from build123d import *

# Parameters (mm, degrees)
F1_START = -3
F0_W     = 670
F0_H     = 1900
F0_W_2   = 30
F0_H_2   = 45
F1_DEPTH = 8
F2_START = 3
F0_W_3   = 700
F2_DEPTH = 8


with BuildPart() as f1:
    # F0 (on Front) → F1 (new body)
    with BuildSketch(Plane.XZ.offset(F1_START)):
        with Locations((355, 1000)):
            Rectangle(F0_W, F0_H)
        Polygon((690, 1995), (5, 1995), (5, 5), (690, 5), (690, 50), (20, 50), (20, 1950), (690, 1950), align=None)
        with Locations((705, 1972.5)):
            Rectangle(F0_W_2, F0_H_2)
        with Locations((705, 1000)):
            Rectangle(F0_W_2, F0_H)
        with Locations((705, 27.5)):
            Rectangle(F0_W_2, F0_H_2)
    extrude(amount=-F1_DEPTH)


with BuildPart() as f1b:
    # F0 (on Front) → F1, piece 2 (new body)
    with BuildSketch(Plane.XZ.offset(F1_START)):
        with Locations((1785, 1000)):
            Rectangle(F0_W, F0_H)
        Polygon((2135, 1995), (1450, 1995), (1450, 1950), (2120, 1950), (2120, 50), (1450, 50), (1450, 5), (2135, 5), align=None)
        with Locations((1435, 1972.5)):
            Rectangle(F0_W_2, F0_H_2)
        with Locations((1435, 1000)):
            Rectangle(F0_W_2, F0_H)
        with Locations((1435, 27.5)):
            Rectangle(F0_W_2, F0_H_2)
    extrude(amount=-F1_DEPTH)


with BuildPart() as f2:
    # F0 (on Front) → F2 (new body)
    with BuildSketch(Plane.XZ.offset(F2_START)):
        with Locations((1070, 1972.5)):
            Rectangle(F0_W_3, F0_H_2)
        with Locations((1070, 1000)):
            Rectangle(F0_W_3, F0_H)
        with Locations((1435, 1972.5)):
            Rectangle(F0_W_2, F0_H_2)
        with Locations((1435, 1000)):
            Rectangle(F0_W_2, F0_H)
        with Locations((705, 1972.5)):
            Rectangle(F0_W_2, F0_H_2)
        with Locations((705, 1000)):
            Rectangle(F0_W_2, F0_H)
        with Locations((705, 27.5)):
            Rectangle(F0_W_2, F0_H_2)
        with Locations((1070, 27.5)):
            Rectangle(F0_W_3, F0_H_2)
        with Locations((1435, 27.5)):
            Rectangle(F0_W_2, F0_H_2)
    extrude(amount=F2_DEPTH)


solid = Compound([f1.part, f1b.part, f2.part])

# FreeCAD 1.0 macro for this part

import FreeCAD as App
import Part
import Sketcher
from FreeCAD import Vector


def add_polygon(sketch, points):
    """Adds a closed chain of lines whose ends are joined by coincident constraints."""
    first, n = sketch.GeometryCount, len(points)
    for a, b in zip(points, points[1:] + points[:1]):
        sketch.addGeometry(Part.LineSegment(App.Vector(*a, 0), App.Vector(*b, 0)), False)
    for i in range(n):
        sketch.addConstraint(Sketcher.Constraint("Coincident", first + i, 2, first + (i + 1) % n, 1))

doc = App.newDocument("Part")
body = doc.addObject("PartDesign::Body", "Body")

# Sketch on XZ plane
sketch1 = body.newObject("Sketcher::SketchObject", "Sketch")
sketch1.AttachmentSupport = (doc.getObject("XZ_Plane"), [""])
sketch1.MapMode = "FlatFace"
sketch1.AttachmentOffset = App.Placement(Vector(0, 0, -3), App.Rotation())
add_polygon(sketch1, [(5, 1995), (5, 5), (720, 5), (720, 1995)])  # lines 0-3
sketch1.addConstraint(Sketcher.Constraint("Vertical", 0))
sketch1.addConstraint(Sketcher.Constraint("Horizontal", 1))
sketch1.addConstraint(Sketcher.Constraint("Vertical", 2))
sketch1.addConstraint(Sketcher.Constraint("Horizontal", 3))
sketch1.addConstraint(Sketcher.Constraint("DistanceX", 1, 1, 1, 2, 715.0))
sketch1.addConstraint(Sketcher.Constraint("DistanceY", 0, 2, 0, 1, 1990.0))
sketch1.addConstraint(Sketcher.Constraint("DistanceX", -1, 1, 0, 2, 5.0))
sketch1.addConstraint(Sketcher.Constraint("DistanceY", -1, 1, 0, 2, 5.0))
pad1 = body.newObject("PartDesign::Pad", "Pad")
pad1.Profile = sketch1
pad1.Length = 8
pad1.Reversed = True
body2 = doc.addObject("PartDesign::Body", "Body001")

# Sketch on XZ plane
sketch2 = body2.newObject("Sketcher::SketchObject", "Sketch001")
sketch2.AttachmentSupport = (doc.getObject("XZ_Plane001"), [""])
sketch2.MapMode = "FlatFace"
sketch2.AttachmentOffset = App.Placement(Vector(0, 0, -3), App.Rotation())
add_polygon(sketch2, [(2135, 5), (2135, 1995), (1420, 1995), (1420, 5)])  # lines 0-3
sketch2.addConstraint(Sketcher.Constraint("Vertical", 0))
sketch2.addConstraint(Sketcher.Constraint("Horizontal", 1))
sketch2.addConstraint(Sketcher.Constraint("Vertical", 2))
sketch2.addConstraint(Sketcher.Constraint("Horizontal", 3))
sketch2.addConstraint(Sketcher.Constraint("DistanceX", 1, 2, 1, 1, 715.0))
sketch2.addConstraint(Sketcher.Constraint("DistanceY", 0, 1, 0, 2, 1990.0))
sketch2.addConstraint(Sketcher.Constraint("DistanceX", -1, 1, 0, 2, 2135.0))
sketch2.addConstraint(Sketcher.Constraint("DistanceY", -1, 1, 0, 2, 1995.0))
pad2 = body2.newObject("PartDesign::Pad", "Pad001")
pad2.Profile = sketch2
pad2.Length = 8
pad2.Reversed = True
body3 = doc.addObject("PartDesign::Body", "Body002")

# Sketch on XZ plane
sketch3 = body3.newObject("Sketcher::SketchObject", "Sketch002")
sketch3.AttachmentSupport = (doc.getObject("XZ_Plane002"), [""])
sketch3.MapMode = "FlatFace"
sketch3.AttachmentOffset = App.Placement(Vector(0, 0, 3), App.Rotation())
add_polygon(sketch3, [(1450, 1995), (690, 1995), (690, 5), (1450, 5)])  # lines 0-3
sketch3.addConstraint(Sketcher.Constraint("Horizontal", 0))
sketch3.addConstraint(Sketcher.Constraint("Vertical", 1))
sketch3.addConstraint(Sketcher.Constraint("Horizontal", 2))
sketch3.addConstraint(Sketcher.Constraint("Vertical", 3))
sketch3.addConstraint(Sketcher.Constraint("DistanceX", 0, 2, 0, 1, 760.0))
sketch3.addConstraint(Sketcher.Constraint("DistanceY", 1, 2, 1, 1, 1990.0))
sketch3.addConstraint(Sketcher.Constraint("DistanceX", -1, 1, 0, 2, 690.0))
sketch3.addConstraint(Sketcher.Constraint("DistanceY", -1, 1, 0, 2, 1995.0))
pad3 = body3.newObject("PartDesign::Pad", "Pad002")
pad3.Profile = sketch3
pad3.Length = 8

doc.recompute()
